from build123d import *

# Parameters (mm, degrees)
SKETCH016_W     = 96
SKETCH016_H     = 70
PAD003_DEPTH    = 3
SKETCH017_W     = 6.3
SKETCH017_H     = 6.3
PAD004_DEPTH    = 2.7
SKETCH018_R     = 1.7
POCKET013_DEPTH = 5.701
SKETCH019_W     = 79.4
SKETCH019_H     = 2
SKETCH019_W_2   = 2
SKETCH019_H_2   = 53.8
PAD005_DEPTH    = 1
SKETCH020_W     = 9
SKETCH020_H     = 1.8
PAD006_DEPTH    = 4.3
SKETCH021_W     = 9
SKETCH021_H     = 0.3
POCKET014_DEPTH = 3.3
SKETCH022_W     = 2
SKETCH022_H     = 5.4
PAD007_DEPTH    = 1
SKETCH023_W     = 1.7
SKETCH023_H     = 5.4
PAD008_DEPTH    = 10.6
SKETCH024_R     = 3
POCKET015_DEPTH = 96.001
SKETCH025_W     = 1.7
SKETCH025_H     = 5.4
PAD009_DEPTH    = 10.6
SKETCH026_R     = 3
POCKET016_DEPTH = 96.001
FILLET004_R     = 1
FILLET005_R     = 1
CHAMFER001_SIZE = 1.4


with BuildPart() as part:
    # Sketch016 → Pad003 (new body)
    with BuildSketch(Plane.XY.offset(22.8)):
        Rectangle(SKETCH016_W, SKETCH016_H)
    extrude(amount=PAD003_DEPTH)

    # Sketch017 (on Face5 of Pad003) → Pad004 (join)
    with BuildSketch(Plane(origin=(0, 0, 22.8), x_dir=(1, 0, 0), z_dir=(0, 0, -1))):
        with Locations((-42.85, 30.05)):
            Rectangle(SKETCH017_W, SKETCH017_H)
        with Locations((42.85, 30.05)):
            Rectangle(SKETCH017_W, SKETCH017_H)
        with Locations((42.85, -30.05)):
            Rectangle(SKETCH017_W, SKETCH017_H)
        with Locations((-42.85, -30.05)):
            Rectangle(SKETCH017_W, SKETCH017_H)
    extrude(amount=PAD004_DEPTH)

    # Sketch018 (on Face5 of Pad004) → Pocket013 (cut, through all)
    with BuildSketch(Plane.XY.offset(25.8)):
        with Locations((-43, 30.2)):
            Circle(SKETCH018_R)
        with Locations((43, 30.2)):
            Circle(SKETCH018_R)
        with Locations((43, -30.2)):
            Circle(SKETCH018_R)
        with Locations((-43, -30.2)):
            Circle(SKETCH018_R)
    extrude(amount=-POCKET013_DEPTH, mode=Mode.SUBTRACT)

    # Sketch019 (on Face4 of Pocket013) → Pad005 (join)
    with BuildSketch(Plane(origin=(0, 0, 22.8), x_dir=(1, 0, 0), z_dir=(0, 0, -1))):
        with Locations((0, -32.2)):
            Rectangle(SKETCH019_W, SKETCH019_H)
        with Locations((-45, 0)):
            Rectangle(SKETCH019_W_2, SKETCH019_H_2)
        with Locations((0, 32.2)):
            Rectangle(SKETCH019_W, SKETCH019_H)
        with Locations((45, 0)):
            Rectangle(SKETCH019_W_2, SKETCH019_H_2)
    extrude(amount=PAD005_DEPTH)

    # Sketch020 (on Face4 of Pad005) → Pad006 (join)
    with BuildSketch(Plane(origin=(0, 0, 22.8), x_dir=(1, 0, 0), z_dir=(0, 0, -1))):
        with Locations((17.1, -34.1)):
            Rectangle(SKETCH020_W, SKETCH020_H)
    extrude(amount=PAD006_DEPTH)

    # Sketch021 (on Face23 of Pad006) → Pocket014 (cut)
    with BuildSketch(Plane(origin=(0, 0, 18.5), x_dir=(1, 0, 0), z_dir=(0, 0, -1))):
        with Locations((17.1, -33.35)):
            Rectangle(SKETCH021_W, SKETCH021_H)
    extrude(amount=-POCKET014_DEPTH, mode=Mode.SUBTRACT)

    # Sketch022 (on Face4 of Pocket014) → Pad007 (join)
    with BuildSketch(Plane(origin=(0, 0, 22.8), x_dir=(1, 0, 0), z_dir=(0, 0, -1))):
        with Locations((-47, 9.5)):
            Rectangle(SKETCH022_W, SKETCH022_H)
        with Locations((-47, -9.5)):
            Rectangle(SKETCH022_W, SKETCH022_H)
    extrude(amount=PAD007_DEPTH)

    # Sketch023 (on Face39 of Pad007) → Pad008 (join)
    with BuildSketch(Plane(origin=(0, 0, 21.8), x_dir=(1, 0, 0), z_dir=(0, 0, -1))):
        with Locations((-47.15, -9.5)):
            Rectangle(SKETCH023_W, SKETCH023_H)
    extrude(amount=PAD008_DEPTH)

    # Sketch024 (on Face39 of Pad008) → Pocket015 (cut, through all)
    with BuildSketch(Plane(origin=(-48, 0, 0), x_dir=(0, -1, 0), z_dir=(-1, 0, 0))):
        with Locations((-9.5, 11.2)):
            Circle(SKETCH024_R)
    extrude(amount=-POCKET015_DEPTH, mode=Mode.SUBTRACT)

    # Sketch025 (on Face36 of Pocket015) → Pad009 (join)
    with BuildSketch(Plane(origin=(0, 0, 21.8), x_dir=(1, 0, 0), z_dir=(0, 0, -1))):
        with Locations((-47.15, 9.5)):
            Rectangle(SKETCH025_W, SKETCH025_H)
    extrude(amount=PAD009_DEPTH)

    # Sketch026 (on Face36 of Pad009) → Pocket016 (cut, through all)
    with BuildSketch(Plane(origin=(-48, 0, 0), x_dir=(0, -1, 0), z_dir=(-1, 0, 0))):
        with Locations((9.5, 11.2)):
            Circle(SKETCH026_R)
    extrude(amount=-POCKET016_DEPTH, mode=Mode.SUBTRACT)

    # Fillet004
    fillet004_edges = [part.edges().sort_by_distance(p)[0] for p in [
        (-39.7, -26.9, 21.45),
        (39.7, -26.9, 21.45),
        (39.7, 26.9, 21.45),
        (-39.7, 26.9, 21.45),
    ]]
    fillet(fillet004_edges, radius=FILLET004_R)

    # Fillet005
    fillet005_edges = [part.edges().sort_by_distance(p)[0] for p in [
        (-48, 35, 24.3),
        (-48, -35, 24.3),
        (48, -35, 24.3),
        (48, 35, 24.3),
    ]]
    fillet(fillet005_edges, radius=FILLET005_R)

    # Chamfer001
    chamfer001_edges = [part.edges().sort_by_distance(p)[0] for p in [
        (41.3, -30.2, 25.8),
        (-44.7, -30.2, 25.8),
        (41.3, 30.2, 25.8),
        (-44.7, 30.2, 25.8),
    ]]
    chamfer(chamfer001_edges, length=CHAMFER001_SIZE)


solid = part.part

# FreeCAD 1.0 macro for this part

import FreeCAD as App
import Part
import Sketcher


def edges_at(feature, points):
    """Names of the edges that pass closest to the given points."""
    edges = feature.Shape.Edges
    near = lambda p: min(range(len(edges)), key=lambda i: edges[i].distToShape(Part.Vertex(*p))[0])
    return sorted({f"Edge{near(p) + 1}" for p in points})

doc = App.newDocument("Part")
body = doc.addObject("PartDesign::Body", "Body")

sketch1 = doc.addObject("Sketcher::SketchObject", "Sketch")
body.addObject(sketch1)
sketch1.AttachmentSupport = (doc.XY_Plane, [""])
sketch1.MapMode = "FlatFace"
sketch1.AttachmentOffset = App.Placement(App.Vector(0, 0, 22.8), App.Rotation())
sketch1.addGeometry([
    Part.LineSegment(App.Vector(-48, 35, 0), App.Vector(-48, -35, 0)),
    Part.LineSegment(App.Vector(-48, -35, 0), App.Vector(48, -35, 0)),
    Part.LineSegment(App.Vector(48, -35, 0), App.Vector(48, 35, 0)),
    Part.LineSegment(App.Vector(48, 35, 0), App.Vector(-48, 35, 0)),
], False)
sketch1.addConstraint([
    Sketcher.Constraint("Coincident", 0, 2, 1, 1),
    Sketcher.Constraint("Coincident", 1, 2, 2, 1),
    Sketcher.Constraint("Coincident", 2, 2, 3, 1),
    Sketcher.Constraint("Coincident", 3, 2, 0, 1),
    Sketcher.Constraint("Vertical", 0),
    Sketcher.Constraint("Horizontal", 1),
    Sketcher.Constraint("Vertical", 2),
    Sketcher.Constraint("Horizontal", 3),
    Sketcher.Constraint("Symmetric", 0, 2, 2, 2, -1, 1),
    Sketcher.Constraint("DistanceX", 1, 1, 1, 2, 96.0),
    Sketcher.Constraint("DistanceY", 0, 2, 0, 1, 70.0),
])
pad1 = doc.addObject("PartDesign::Pad", "Pad")
body.addObject(pad1)
pad1.Profile = sketch1
pad1.Length = 3

sketch2 = doc.addObject("Sketcher::SketchObject", "Sketch001")
body.addObject(sketch2)
sketch2.AttachmentSupport = (doc.XY_Plane, [""])
sketch2.MapMode = "FlatFace"
sketch2.AttachmentOffset = App.Placement(App.Vector(0, 0, 22.8), App.Rotation())
sketch2.addGeometry([
    Part.LineSegment(App.Vector(-46, -33.2, 0), App.Vector(-46, -26.9, 0)),
    Part.LineSegment(App.Vector(-46, -26.9, 0), App.Vector(-39.7, -26.9, 0)),
    Part.LineSegment(App.Vector(-39.7, -26.9, 0), App.Vector(-39.7, -33.2, 0)),
    Part.LineSegment(App.Vector(-39.7, -33.2, 0), App.Vector(-46, -33.2, 0)),
    Part.LineSegment(App.Vector(39.7, -33.2, 0), App.Vector(39.7, -26.9, 0)),
    Part.LineSegment(App.Vector(39.7, -26.9, 0), App.Vector(46, -26.9, 0)),
    Part.LineSegment(App.Vector(46, -26.9, 0), App.Vector(46, -33.2, 0)),
    Part.LineSegment(App.Vector(46, -33.2, 0), App.Vector(39.7, -33.2, 0)),
    Part.LineSegment(App.Vector(39.7, 26.9, 0), App.Vector(39.7, 33.2, 0)),
    Part.LineSegment(App.Vector(39.7, 33.2, 0), App.Vector(46, 33.2, 0)),
    Part.LineSegment(App.Vector(46, 33.2, 0), App.Vector(46, 26.9, 0)),
    Part.LineSegment(App.Vector(46, 26.9, 0), App.Vector(39.7, 26.9, 0)),
    Part.LineSegment(App.Vector(-46, 26.9, 0), App.Vector(-46, 33.2, 0)),
    Part.LineSegment(App.Vector(-46, 33.2, 0), App.Vector(-39.7, 33.2, 0)),
    Part.LineSegment(App.Vector(-39.7, 33.2, 0), App.Vector(-39.7, 26.9, 0)),
    Part.LineSegment(App.Vector(-39.7, 26.9, 0), App.Vector(-46, 26.9, 0)),
], False)
sketch2.addConstraint([
    Sketcher.Constraint("Coincident", 0, 2, 1, 1),
    Sketcher.Constraint("Coincident", 1, 2, 2, 1),
    Sketcher.Constraint("Coincident", 2, 2, 3, 1),
    Sketcher.Constraint("Coincident", 3, 2, 0, 1),
    Sketcher.Constraint("Coincident", 4, 2, 5, 1),
    Sketcher.Constraint("Coincident", 5, 2, 6, 1),
    Sketcher.Constraint("Coincident", 6, 2, 7, 1),
    Sketcher.Constraint("Coincident", 7, 2, 4, 1),
    Sketcher.Constraint("Coincident", 8, 2, 9, 1),
    Sketcher.Constraint("Coincident", 9, 2, 10, 1),
    Sketcher.Constraint("Coincident", 10, 2, 11, 1),
    Sketcher.Constraint("Coincident", 11, 2, 8, 1),
    Sketcher.Constraint("Coincident", 12, 2, 13, 1),
    Sketcher.Constraint("Coincident", 13, 2, 14, 1),
    Sketcher.Constraint("Coincident", 14, 2, 15, 1),
    Sketcher.Constraint("Coincident", 15, 2, 12, 1),
    Sketcher.Constraint("Vertical", 0),
    Sketcher.Constraint("Horizontal", 1),
    Sketcher.Constraint("Vertical", 2),
    Sketcher.Constraint("Horizontal", 3),
    Sketcher.Constraint("Vertical", 4),
    Sketcher.Constraint("Horizontal", 5),
    Sketcher.Constraint("Vertical", 6),
    Sketcher.Constraint("Horizontal", 7),
    Sketcher.Constraint("Vertical", 8),
    Sketcher.Constraint("Horizontal", 9),
    Sketcher.Constraint("Vertical", 10),
    Sketcher.Constraint("Horizontal", 11),
    Sketcher.Constraint("Vertical", 12),
    Sketcher.Constraint("Horizontal", 13),
    Sketcher.Constraint("Vertical", 14),
    Sketcher.Constraint("Horizontal", 15),
    Sketcher.Constraint("Symmetric", 2, 2, 8, 2, -1, 1),
    Sketcher.Constraint("Symmetric", 0, 2, 10, 2, -1, 1),
    Sketcher.Constraint("Symmetric", 6, 2, 12, 2, -1, 1),
    Sketcher.Constraint("Symmetric", 4, 2, 14, 2, -1, 1),
    Sketcher.Constraint("Symmetric", 1, 2, 4, 2, -2),
    Sketcher.Constraint("Symmetric", 3, 2, 6, 2, -2),
    Sketcher.Constraint("Equal", 15, 0),
    Sketcher.Constraint("DistanceX", 1, 1, 1, 2, 6.3),
    Sketcher.Constraint("DistanceX", 0, 2, -1, 1, 46.0),
    Sketcher.Constraint("DistanceY", 0, 2, -1, 1, 26.9),
])
pad2 = doc.addObject("PartDesign::Pad", "Pad001")
body.addObject(pad2)
pad2.Profile = sketch2
pad2.Length = 2.7
pad2.Reversed = True

sketch3 = doc.addObject("Sketcher::SketchObject", "Sketch002")
body.addObject(sketch3)
sketch3.AttachmentSupport = (doc.XY_Plane, [""])
sketch3.MapMode = "FlatFace"
sketch3.AttachmentOffset = App.Placement(App.Vector(0, 0, 25.8), App.Rotation())
sketch3.addGeometry([
    Part.Circle(App.Vector(-43, 30.2, 0), App.Vector(0, 0, 1), 1.7),
    Part.Circle(App.Vector(43, 30.2, 0), App.Vector(0, 0, 1), 1.7),
    Part.Circle(App.Vector(43, -30.2, 0), App.Vector(0, 0, 1), 1.7),
    Part.Circle(App.Vector(-43, -30.2, 0), App.Vector(0, 0, 1), 1.7),
], False)
sketch3.addConstraint([
    Sketcher.Constraint("Equal", 0, 1),
    Sketcher.Constraint("Equal", 1, 2),
    Sketcher.Constraint("Equal", 2, 3),
    Sketcher.Constraint("Symmetric", 0, 3, 2, 3, -1, 1),
    Sketcher.Constraint("Symmetric", 1, 3, 3, 3, -1, 1),
    Sketcher.Constraint("Symmetric", 0, 3, 1, 3, -2),
    Sketcher.Constraint("Diameter", 0, 3.4),
    Sketcher.Constraint("DistanceX", 0, 3, -1, 1, 43.0),
    Sketcher.Constraint("DistanceY", -1, 1, 0, 3, 30.2),
])
pocket1 = doc.addObject("PartDesign::Pocket", "Pocket")
body.addObject(pocket1)
pocket1.Profile = sketch3
pocket1.Type = "ThroughAll"

sketch4 = doc.addObject("Sketcher::SketchObject", "Sketch003")
body.addObject(sketch4)
sketch4.AttachmentSupport = (doc.XY_Plane, [""])
sketch4.MapMode = "FlatFace"
sketch4.AttachmentOffset = App.Placement(App.Vector(0, 0, 22.8), App.Rotation())
sketch4.addGeometry([
    Part.LineSegment(App.Vector(-39.7, 31.2, 0), App.Vector(-39.7, 33.2, 0)),
    Part.LineSegment(App.Vector(-39.7, 33.2, 0), App.Vector(39.7, 33.2, 0)),
    Part.LineSegment(App.Vector(39.7, 33.2, 0), App.Vector(39.7, 31.2, 0)),
    Part.LineSegment(App.Vector(39.7, 31.2, 0), App.Vector(-39.7, 31.2, 0)),
    Part.LineSegment(App.Vector(-46, -26.9, 0), App.Vector(-46, 26.9, 0)),
    Part.LineSegment(App.Vector(-46, 26.9, 0), App.Vector(-44, 26.9, 0)),
    Part.LineSegment(App.Vector(-44, 26.9, 0), App.Vector(-44, -26.9, 0)),
    Part.LineSegment(App.Vector(-44, -26.9, 0), App.Vector(-46, -26.9, 0)),
    Part.LineSegment(App.Vector(-39.7, -33.2, 0), App.Vector(-39.7, -31.2, 0)),
    Part.LineSegment(App.Vector(-39.7, -31.2, 0), App.Vector(39.7, -31.2, 0)),
    Part.LineSegment(App.Vector(39.7, -31.2, 0), App.Vector(39.7, -33.2, 0)),
    Part.LineSegment(App.Vector(39.7, -33.2, 0), App.Vector(-39.7, -33.2, 0)),
    Part.LineSegment(App.Vector(44, -26.9, 0), App.Vector(44, 26.9, 0)),
    Part.LineSegment(App.Vector(44, 26.9, 0), App.Vector(46, 26.9, 0)),
    Part.LineSegment(App.Vector(46, 26.9, 0), App.Vector(46, -26.9, 0)),
    Part.LineSegment(App.Vector(46, -26.9, 0), App.Vector(44, -26.9, 0)),
], False)
sketch4.addConstraint([
    Sketcher.Constraint("Coincident", 0, 2, 1, 1),
    Sketcher.Constraint("Coincident", 1, 2, 2, 1),
    Sketcher.Constraint("Coincident", 2, 2, 3, 1),
    Sketcher.Constraint("Coincident", 3, 2, 0, 1),
    Sketcher.Constraint("Coincident", 4, 2, 5, 1),
    Sketcher.Constraint("Coincident", 5, 2, 6, 1),
    Sketcher.Constraint("Coincident", 6, 2, 7, 1),
    Sketcher.Constraint("Coincident", 7, 2, 4, 1),
    Sketcher.Constraint("Coincident", 8, 2, 9, 1),
    Sketcher.Constraint("Coincident", 9, 2, 10, 1),
    Sketcher.Constraint("Coincident", 10, 2, 11, 1),
    Sketcher.Constraint("Coincident", 11, 2, 8, 1),
    Sketcher.Constraint("Coincident", 12, 2, 13, 1),
    Sketcher.Constraint("Coincident", 13, 2, 14, 1),
    Sketcher.Constraint("Coincident", 14, 2, 15, 1),
    Sketcher.Constraint("Coincident", 15, 2, 12, 1),
    Sketcher.Constraint("Vertical", 0),
    Sketcher.Constraint("Horizontal", 1),
    Sketcher.Constraint("Vertical", 2),
    Sketcher.Constraint("Horizontal", 3),
    Sketcher.Constraint("Vertical", 4),
    Sketcher.Constraint("Horizontal", 5),
    Sketcher.Constraint("Vertical", 6),
    Sketcher.Constraint("Horizontal", 7),
    Sketcher.Constraint("Vertical", 8),
    Sketcher.Constraint("Horizontal", 9),
    Sketcher.Constraint("Vertical", 10),
    Sketcher.Constraint("Horizontal", 11),
    Sketcher.Constraint("Vertical", 12),
    Sketcher.Constraint("Horizontal", 13),
    Sketcher.Constraint("Vertical", 14),
    Sketcher.Constraint("Horizontal", 15),
    Sketcher.Constraint("Symmetric", 2, 2, 8, 2, -1, 1),
    Sketcher.Constraint("Symmetric", 0, 2, 10, 2, -1, 1),
    Sketcher.Constraint("Symmetric", 6, 2, 12, 2, -1, 1),
    Sketcher.Constraint("Symmetric", 4, 2, 14, 2, -1, 1),
    Sketcher.Constraint("Horizontal", 5, 2, 12, 2),
    Sketcher.Constraint("Vertical", 3, 2, 8, 2),
    Sketcher.Constraint("Equal", 15, 0),
    Sketcher.Constraint("DistanceX", 5, 1, 5, 2, 2.0),
    Sketcher.Constraint("DistanceX", 1, 1, 1, 2, 79.4),
    Sketcher.Constraint("DistanceY", 4, 1, 4, 2, 53.8),
    Sketcher.Constraint("DistanceX", 4, 2, -1, 1, 46.0),
    Sketcher.Constraint("DistanceY", -1, 1, 0, 2, 33.2),
])
pad3 = doc.addObject("PartDesign::Pad", "Pad002")
body.addObject(pad3)
pad3.Profile = sketch4
pad3.Length = 1
pad3.Reversed = True

sketch5 = doc.addObject("Sketcher::SketchObject", "Sketch004")
body.addObject(sketch5)
sketch5.AttachmentSupport = (doc.XY_Plane, [""])
sketch5.MapMode = "FlatFace"
sketch5.AttachmentOffset = App.Placement(App.Vector(0, 0, 22.8), App.Rotation())
sketch5.addGeometry([
    Part.LineSegment(App.Vector(12.6, 33.2, 0), App.Vector(12.6, 35, 0)),
    Part.LineSegment(App.Vector(12.6, 35, 0), App.Vector(21.6, 35, 0)),
    Part.LineSegment(App.Vector(21.6, 35, 0), App.Vector(21.6, 33.2, 0)),
    Part.LineSegment(App.Vector(21.6, 33.2, 0), App.Vector(12.6, 33.2, 0)),
], False)
sketch5.addConstraint([
    Sketcher.Constraint("Coincident", 0, 2, 1, 1),
    Sketcher.Constraint("Coincident", 1, 2, 2, 1),
    Sketcher.Constraint("Coincident", 2, 2, 3, 1),
    Sketcher.Constraint("Coincident", 3, 2, 0, 1),
    Sketcher.Constraint("Vertical", 0),
    Sketcher.Constraint("Horizontal", 1),
    Sketcher.Constraint("Vertical", 2),
    Sketcher.Constraint("Horizontal", 3),
    Sketcher.Constraint("DistanceX", 1, 1, 1, 2, 9.0),
    Sketcher.Constraint("DistanceY", 0, 1, 0, 2, 1.8),
    Sketcher.Constraint("DistanceY", -1, 1, 0, 2, 35.0),
    Sketcher.Constraint("DistanceX", -1, 1, 0, 2, 12.6),
])
pad4 = doc.addObject("PartDesign::Pad", "Pad003")
body.addObject(pad4)
pad4.Profile = sketch5
pad4.Length = 4.3
pad4.Reversed = True

sketch6 = doc.addObject("Sketcher::SketchObject", "Sketch005")
body.addObject(sketch6)
sketch6.AttachmentSupport = (doc.XY_Plane, [""])
sketch6.MapMode = "FlatFace"
sketch6.AttachmentOffset = App.Placement(App.Vector(0, 0, 18.5), App.Rotation())
sketch6.addGeometry([
    Part.LineSegment(App.Vector(12.6, 33.2, 0), App.Vector(12.6, 33.5, 0)),
    Part.LineSegment(App.Vector(12.6, 33.5, 0), App.Vector(21.6, 33.5, 0)),
    Part.LineSegment(App.Vector(21.6, 33.5, 0), App.Vector(21.6, 33.2, 0)),
    Part.LineSegment(App.Vector(21.6, 33.2, 0), App.Vector(12.6, 33.2, 0)),
], False)
sketch6.addConstraint([
    Sketcher.Constraint("Coincident", 0, 2, 1, 1),
    Sketcher.Constraint("Coincident", 1, 2, 2, 1),
    Sketcher.Constraint("Coincident", 2, 2, 3, 1),
    Sketcher.Constraint("Coincident", 3, 2, 0, 1),
    Sketcher.Constraint("Vertical", 0),
    Sketcher.Constraint("Horizontal", 1),
    Sketcher.Constraint("Vertical", 2),
    Sketcher.Constraint("Horizontal", 3),
    Sketcher.Constraint("DistanceX", 1, 1, 1, 2, 9.0),
    Sketcher.Constraint("DistanceY", 0, 1, 0, 2, 0.3),
    Sketcher.Constraint("DistanceX", -1, 1, 0, 2, 12.6),
    Sketcher.Constraint("DistanceY", -1, 1, 0, 2, 33.5),
])
pocket2 = doc.addObject("PartDesign::Pocket", "Pocket001")
body.addObject(pocket2)
pocket2.Profile = sketch6
pocket2.Length = 3.3
pocket2.Reversed = True

sketch7 = doc.addObject("Sketcher::SketchObject", "Sketch006")
body.addObject(sketch7)
sketch7.AttachmentSupport = (doc.XY_Plane, [""])
sketch7.MapMode = "FlatFace"
sketch7.AttachmentOffset = App.Placement(App.Vector(0, 0, 22.8), App.Rotation())
sketch7.addGeometry([
    Part.LineSegment(App.Vector(-48, -12.2, 0), App.Vector(-48, -6.8, 0)),
    Part.LineSegment(App.Vector(-48, -6.8, 0), App.Vector(-46, -6.8, 0)),
    Part.LineSegment(App.Vector(-46, -6.8, 0), App.Vector(-46, -12.2, 0)),
    Part.LineSegment(App.Vector(-46, -12.2, 0), App.Vector(-48, -12.2, 0)),
    Part.LineSegment(App.Vector(-48, 6.8, 0), App.Vector(-48, 12.2, 0)),
    Part.LineSegment(App.Vector(-48, 12.2, 0), App.Vector(-46, 12.2, 0)),
    Part.LineSegment(App.Vector(-46, 12.2, 0), App.Vector(-46, 6.8, 0)),
    Part.LineSegment(App.Vector(-46, 6.8, 0), App.Vector(-48, 6.8, 0)),
], False)
sketch7.addConstraint([
    Sketcher.Constraint("Coincident", 0, 2, 1, 1),
    Sketcher.Constraint("Coincident", 1, 2, 2, 1),
    Sketcher.Constraint("Coincident", 2, 2, 3, 1),
    Sketcher.Constraint("Coincident", 3, 2, 0, 1),
    Sketcher.Constraint("Coincident", 4, 2, 5, 1),
    Sketcher.Constraint("Coincident", 5, 2, 6, 1),
    Sketcher.Constraint("Coincident", 6, 2, 7, 1),
    Sketcher.Constraint("Coincident", 7, 2, 4, 1),
    Sketcher.Constraint("Vertical", 0),
    Sketcher.Constraint("Horizontal", 1),
    Sketcher.Constraint("Vertical", 2),
    Sketcher.Constraint("Horizontal", 3),
    Sketcher.Constraint("Vertical", 4),
    Sketcher.Constraint("Horizontal", 5),
    Sketcher.Constraint("Vertical", 6),
    Sketcher.Constraint("Horizontal", 7),
    Sketcher.Constraint("Symmetric", 3, 2, 4, 2, -1),
    Sketcher.Constraint("Symmetric", 1, 2, 6, 2, -1),
    Sketcher.Constraint("DistanceX", 1, 1, 1, 2, 2.0),
    Sketcher.Constraint("DistanceY", 0, 1, 0, 2, 5.4),
    Sketcher.Constraint("DistanceX", 0, 2, -1, 1, 48.0),
    Sketcher.Constraint("DistanceY", 0, 2, 4, 2, 19.0),
])
pad5 = doc.addObject("PartDesign::Pad", "Pad004")
body.addObject(pad5)
pad5.Profile = sketch7
pad5.Length = 1
pad5.Reversed = True

sketch8 = doc.addObject("Sketcher::SketchObject", "Sketch007")
body.addObject(sketch8)
sketch8.AttachmentSupport = (doc.XY_Plane, [""])
sketch8.MapMode = "FlatFace"
sketch8.AttachmentOffset = App.Placement(App.Vector(0, 0, 21.8), App.Rotation())
sketch8.addGeometry([
    Part.LineSegment(App.Vector(-48, 6.8, 0), App.Vector(-48, 12.2, 0)),
    Part.LineSegment(App.Vector(-48, 12.2, 0), App.Vector(-46.3, 12.2, 0)),
    Part.LineSegment(App.Vector(-46.3, 12.2, 0), App.Vector(-46.3, 6.8, 0)),
    Part.LineSegment(App.Vector(-46.3, 6.8, 0), App.Vector(-48, 6.8, 0)),
], False)
sketch8.addConstraint([
    Sketcher.Constraint("Coincident", 0, 2, 1, 1),
    Sketcher.Constraint("Coincident", 1, 2, 2, 1),
    Sketcher.Constraint("Coincident", 2, 2, 3, 1),
    Sketcher.Constraint("Coincident", 3, 2, 0, 1),
    Sketcher.Constraint("Vertical", 0),
    Sketcher.Constraint("Horizontal", 1),
    Sketcher.Constraint("Vertical", 2),
    Sketcher.Constraint("Horizontal", 3),
    Sketcher.Constraint("DistanceX", 1, 1, 1, 2, 1.7),
    Sketcher.Constraint("DistanceY", 0, 1, 0, 2, 5.4),
    Sketcher.Constraint("DistanceX", 0, 2, -1, 1, 48.0),
    Sketcher.Constraint("DistanceY", -1, 1, 0, 2, 12.2),
])
pad6 = doc.addObject("PartDesign::Pad", "Pad005")
body.addObject(pad6)
pad6.Profile = sketch8
pad6.Length = 10.6
pad6.Reversed = True

sketch9 = doc.addObject("Sketcher::SketchObject", "Sketch008")
body.addObject(sketch9)
sketch9.AttachmentSupport = (doc.YZ_Plane, [""])
sketch9.MapMode = "FlatFace"
sketch9.AttachmentOffset = App.Placement(App.Vector(0, 0, -48), App.Rotation())
sketch9.addGeometry(Part.Circle(App.Vector(9.5, 11.2, 0), App.Vector(0, 0, 1), 3), False)
sketch9.addConstraint([
    Sketcher.Constraint("Diameter", 0, 6.0),
    Sketcher.Constraint("DistanceX", -1, 1, 0, 3, 9.5),
    Sketcher.Constraint("DistanceY", -1, 1, 0, 3, 11.2),
])
pocket3 = doc.addObject("PartDesign::Pocket", "Pocket002")
body.addObject(pocket3)
pocket3.Profile = sketch9
pocket3.Type = "ThroughAll"
pocket3.Reversed = True

sketch10 = doc.addObject("Sketcher::SketchObject", "Sketch009")
body.addObject(sketch10)
sketch10.AttachmentSupport = (doc.XY_Plane, [""])
sketch10.MapMode = "FlatFace"
sketch10.AttachmentOffset = App.Placement(App.Vector(0, 0, 21.8), App.Rotation())
sketch10.addGeometry([
    Part.LineSegment(App.Vector(-48, -12.2, 0), App.Vector(-48, -6.8, 0)),
    Part.LineSegment(App.Vector(-48, -6.8, 0), App.Vector(-46.3, -6.8, 0)),
    Part.LineSegment(App.Vector(-46.3, -6.8, 0), App.Vector(-46.3, -12.2, 0)),
    Part.LineSegment(App.Vector(-46.3, -12.2, 0), App.Vector(-48, -12.2, 0)),
], False)
sketch10.addConstraint([
    Sketcher.Constraint("Coincident", 0, 2, 1, 1),
    Sketcher.Constraint("Coincident", 1, 2, 2, 1),
    Sketcher.Constraint("Coincident", 2, 2, 3, 1),
    Sketcher.Constraint("Coincident", 3, 2, 0, 1),
    Sketcher.Constraint("Vertical", 0),
    Sketcher.Constraint("Horizontal", 1),
    Sketcher.Constraint("Vertical", 2),
    Sketcher.Constraint("Horizontal", 3),
    Sketcher.Constraint("DistanceX", 1, 1, 1, 2, 1.7),
    Sketcher.Constraint("DistanceY", 0, 1, 0, 2, 5.4),
    Sketcher.Constraint("DistanceX", 0, 2, -1, 1, 48.0),
    Sketcher.Constraint("DistanceY", 0, 2, -1, 1, 6.8),
])
pad7 = doc.addObject("PartDesign::Pad", "Pad006")
body.addObject(pad7)
pad7.Profile = sketch10
pad7.Length = 10.6
pad7.Reversed = True

sketch11 = doc.addObject("Sketcher::SketchObject", "Sketch010")
body.addObject(sketch11)
sketch11.AttachmentSupport = (doc.YZ_Plane, [""])
sketch11.MapMode = "FlatFace"
sketch11.AttachmentOffset = App.Placement(App.Vector(0, 0, -48), App.Rotation())
sketch11.addGeometry(Part.Circle(App.Vector(-9.5, 11.2, 0), App.Vector(0, 0, 1), 3), False)
sketch11.addConstraint([
    Sketcher.Constraint("Diameter", 0, 6.0),
    Sketcher.Constraint("DistanceX", 0, 3, -1, 1, 9.5),
    Sketcher.Constraint("DistanceY", -1, 1, 0, 3, 11.2),
])
pocket4 = doc.addObject("PartDesign::Pocket", "Pocket003")
body.addObject(pocket4)
pocket4.Profile = sketch11
pocket4.Type = "ThroughAll"
pocket4.Reversed = True
doc.recompute()

fillet = doc.addObject("PartDesign::Fillet", "Fillet")
body.addObject(fillet)
fillet.Base = (pocket4, edges_at(pocket4, [
    (-39.7, -26.9, 21.45),
    (39.7, -26.9, 21.45),
    (39.7, 26.9, 21.45),
    (-39.7, 26.9, 21.45),
]))
fillet.Radius = 1
doc.recompute()

fillet2 = doc.addObject("PartDesign::Fillet", "Fillet001")
body.addObject(fillet2)
fillet2.Base = (fillet, edges_at(fillet, [
    (-48, 35, 24.3),
    (-48, -35, 24.3),
    (48, -35, 24.3),
    (48, 35, 24.3),
]))
fillet2.Radius = 1
doc.recompute()

chamfer = doc.addObject("PartDesign::Chamfer", "Chamfer")
body.addObject(chamfer)
chamfer.Base = (fillet2, edges_at(fillet2, [
    (41.3, -30.2, 25.8),
    (-44.7, -30.2, 25.8),
    (41.3, 30.2, 25.8),
    (-44.7, 30.2, 25.8),
]))
chamfer.Size = 1.4

doc.recompute()
